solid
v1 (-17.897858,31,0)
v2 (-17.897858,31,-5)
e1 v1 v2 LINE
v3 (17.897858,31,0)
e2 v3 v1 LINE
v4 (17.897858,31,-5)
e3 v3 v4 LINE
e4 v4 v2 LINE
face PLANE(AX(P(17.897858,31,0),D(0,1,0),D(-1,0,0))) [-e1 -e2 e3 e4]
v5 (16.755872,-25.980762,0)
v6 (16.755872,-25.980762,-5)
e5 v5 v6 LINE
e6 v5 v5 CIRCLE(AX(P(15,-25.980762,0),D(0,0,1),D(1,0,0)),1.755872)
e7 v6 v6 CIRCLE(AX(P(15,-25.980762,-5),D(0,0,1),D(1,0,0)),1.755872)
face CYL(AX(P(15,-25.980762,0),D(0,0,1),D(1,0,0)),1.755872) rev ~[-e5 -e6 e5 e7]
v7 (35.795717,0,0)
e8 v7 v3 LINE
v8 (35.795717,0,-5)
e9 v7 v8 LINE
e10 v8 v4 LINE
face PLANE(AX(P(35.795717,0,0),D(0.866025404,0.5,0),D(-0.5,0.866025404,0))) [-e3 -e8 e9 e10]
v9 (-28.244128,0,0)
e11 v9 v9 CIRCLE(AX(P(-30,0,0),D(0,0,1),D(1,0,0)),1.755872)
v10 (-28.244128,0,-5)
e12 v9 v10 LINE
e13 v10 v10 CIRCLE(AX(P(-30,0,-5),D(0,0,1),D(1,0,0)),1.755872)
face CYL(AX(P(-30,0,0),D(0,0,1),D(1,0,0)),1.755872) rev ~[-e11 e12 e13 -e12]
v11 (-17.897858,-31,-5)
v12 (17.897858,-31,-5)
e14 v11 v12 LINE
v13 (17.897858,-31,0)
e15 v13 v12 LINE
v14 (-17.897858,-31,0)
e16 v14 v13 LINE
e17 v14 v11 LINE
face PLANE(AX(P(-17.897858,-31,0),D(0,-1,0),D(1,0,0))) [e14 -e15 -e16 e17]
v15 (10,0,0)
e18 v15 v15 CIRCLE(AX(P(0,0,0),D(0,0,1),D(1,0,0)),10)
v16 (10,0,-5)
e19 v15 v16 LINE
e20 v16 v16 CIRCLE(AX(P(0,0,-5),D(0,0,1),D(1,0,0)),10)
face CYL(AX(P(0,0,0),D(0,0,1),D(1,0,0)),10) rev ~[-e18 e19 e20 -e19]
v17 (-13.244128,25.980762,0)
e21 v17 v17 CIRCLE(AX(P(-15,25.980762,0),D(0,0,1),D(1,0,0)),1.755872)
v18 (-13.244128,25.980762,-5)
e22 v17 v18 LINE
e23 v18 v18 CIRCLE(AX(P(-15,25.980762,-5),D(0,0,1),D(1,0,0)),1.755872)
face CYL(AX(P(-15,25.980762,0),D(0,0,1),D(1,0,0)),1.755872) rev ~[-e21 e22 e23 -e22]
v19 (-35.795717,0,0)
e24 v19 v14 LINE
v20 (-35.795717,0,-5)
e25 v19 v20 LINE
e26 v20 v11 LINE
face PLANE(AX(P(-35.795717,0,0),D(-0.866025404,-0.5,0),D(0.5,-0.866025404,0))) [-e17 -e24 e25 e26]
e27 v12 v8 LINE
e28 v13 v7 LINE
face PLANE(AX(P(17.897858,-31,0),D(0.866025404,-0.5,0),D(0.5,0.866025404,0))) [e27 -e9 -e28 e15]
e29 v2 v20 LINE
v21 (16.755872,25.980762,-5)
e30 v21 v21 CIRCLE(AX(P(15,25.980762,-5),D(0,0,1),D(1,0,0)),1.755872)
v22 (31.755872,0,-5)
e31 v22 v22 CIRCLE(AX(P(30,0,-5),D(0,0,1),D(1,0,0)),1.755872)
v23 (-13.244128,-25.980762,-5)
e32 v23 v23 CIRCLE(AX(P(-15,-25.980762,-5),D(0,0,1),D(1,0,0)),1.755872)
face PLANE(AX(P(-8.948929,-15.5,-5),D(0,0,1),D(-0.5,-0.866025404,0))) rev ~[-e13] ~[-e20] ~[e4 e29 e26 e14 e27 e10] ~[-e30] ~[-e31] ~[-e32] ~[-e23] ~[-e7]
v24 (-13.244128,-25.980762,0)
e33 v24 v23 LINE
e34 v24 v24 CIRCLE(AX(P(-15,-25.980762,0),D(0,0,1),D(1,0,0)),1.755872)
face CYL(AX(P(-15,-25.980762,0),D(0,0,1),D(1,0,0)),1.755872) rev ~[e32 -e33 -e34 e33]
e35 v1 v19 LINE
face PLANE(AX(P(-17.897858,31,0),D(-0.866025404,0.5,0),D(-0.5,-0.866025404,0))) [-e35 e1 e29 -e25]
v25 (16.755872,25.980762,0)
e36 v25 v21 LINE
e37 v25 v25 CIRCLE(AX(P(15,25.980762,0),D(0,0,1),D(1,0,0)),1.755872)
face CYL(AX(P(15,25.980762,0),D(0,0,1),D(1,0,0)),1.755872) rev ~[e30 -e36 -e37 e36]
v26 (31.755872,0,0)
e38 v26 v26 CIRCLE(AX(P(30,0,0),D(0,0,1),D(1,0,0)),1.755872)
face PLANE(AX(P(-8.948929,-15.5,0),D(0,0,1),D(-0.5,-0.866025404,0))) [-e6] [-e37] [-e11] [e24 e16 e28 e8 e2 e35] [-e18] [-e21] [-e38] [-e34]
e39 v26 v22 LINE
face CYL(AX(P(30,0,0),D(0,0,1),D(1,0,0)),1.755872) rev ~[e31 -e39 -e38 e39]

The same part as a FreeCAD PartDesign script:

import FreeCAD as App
import Part
import Sketcher
Q = App.Units.Quantity

doc = App.newDocument("Part")
body = doc.addObject("PartDesign::Body", "Body")

sketch1 = doc.addObject("Sketcher::SketchObject", "Sketch")
body.addObject(sketch1)
sketch1.AttachmentSupport = (doc.XY_Plane, [""])
sketch1.MapMode = "FlatFace"
sketch1.addGeometry([
    Part.LineSegment(App.Vector(36, 0, 0), App.Vector(18, 31, 0)),
    Part.LineSegment(App.Vector(18, 31, 0), App.Vector(0, 0, 0)),
    Part.LineSegment(App.Vector(0, 0, 0), App.Vector(18, -31, 0)),
    Part.LineSegment(App.Vector(18, -31, 0), App.Vector(36, 0, 0)),
], False)
sketch1.addConstraint([
    Sketcher.Constraint("Coincident", 0, 2, 1, 1),
    Sketcher.Constraint("Coincident", 1, 2, 2, 1),
    Sketcher.Constraint("Coincident", 2, 2, 3, 1),
    Sketcher.Constraint("Coincident", 3, 2, 0, 1),
    Sketcher.Constraint("Coincident", 1, 2, -1, 1),
    Sketcher.Constraint("Symmetric", 0, 2, 2, 2, -1),
    Sketcher.Constraint("PointOnObject", 3, 2, -1),
    Sketcher.Constraint("Parallel", 0, 2),
    Sketcher.Constraint("Angle", 0, Q("120 deg")),
    Sketcher.Constraint("DistanceY", -1, 1, 0, 2, Q("31 mm")),
])
pad1 = doc.addObject("PartDesign::Pad", "Pad")
body.addObject(pad1)
pad1.Profile = sketch1
pad1.Length = 5
pad1.Reversed = True
body2 = doc.addObject("PartDesign::Body", "Body001")
doc.recompute()

body2.BaseFeature = body
doc.recompute()

body3 = doc.addObject("PartDesign::Body", "Body002")
body3.BaseFeature = body
body3.Placement = App.Placement(App.Vector(0, 0, 0), App.Rotation(App.Vector(0, 0, 1), 120))
boolean = doc.addObject("PartDesign::Boolean", "Boolean")
body2.addObject(boolean)
boolean.Type = "Fuse"
boolean.addObjects([body3])
doc.recompute()

body.Placement = App.Placement(App.Vector(0, 0, 0), App.Rotation(App.Vector(0, 0, 1), 240))
boolean2 = doc.addObject("PartDesign::Boolean", "Boolean001")
body2.addObject(boolean2)
boolean2.Type = "Fuse"
boolean2.addObjects([body])

sketch2 = doc.addObject("Sketcher::SketchObject", "Sketch001")
body2.addObject(sketch2)
sketch2.AttachmentSupport = (doc.getObject("XY_Plane001"), [""])
sketch2.MapMode = "FlatFace"
sketch2.addGeometry(Part.Circle(App.Vector(0, 0, 0), App.Vector(0, 0, 1), 10), False)
sketch2.addConstraint([
    Sketcher.Constraint("Coincident", 0, 3, -1, 1),
    Sketcher.Constraint("Diameter", 0, Q("20 mm")),
])
pocket1 = doc.addObject("PartDesign::Pocket", "Pocket")
body2.addObject(pocket1)
pocket1.Profile = sketch2
pocket1.Type = "ThroughAll"

sketch3 = doc.addObject("Sketcher::SketchObject", "Sketch002")
body2.addObject(sketch3)
sketch3.AttachmentSupport = (doc.getObject("XY_Plane001"), [""])
sketch3.MapMode = "FlatFace"
sketch3.addGeometry([
    Part.Circle(App.Vector(15, -26, 0), App.Vector(0, 0, 1), 1.8),
    Part.Circle(App.Vector(-15, -26, 0), App.Vector(0, 0, 1), 1.8),
    Part.Circle(App.Vector(30, 0, 0), App.Vector(0, 0, 1), 1.8),
    Part.Circle(App.Vector(15, 26, 0), App.Vector(0, 0, 1), 1.8),
    Part.Circle(App.Vector(-15, 26, 0), App.Vector(0, 0, 1), 1.8),
    Part.Circle(App.Vector(-30, 0, 0), App.Vector(0, 0, 1), 1.8),
], False)
sketch3.addConstraint([
    Sketcher.Constraint("Equal", 0, 1),
    Sketcher.Constraint("Equal", 1, 2),
    Sketcher.Constraint("Equal", 2, 3),
    Sketcher.Constraint("Equal", 3, 4),
    Sketcher.Constraint("Equal", 4, 5),
    Sketcher.Constraint("Symmetric", 1, 3, 3, 3, -1, 1),
    Sketcher.Constraint("Symmetric", 0, 3, 4, 3, -1, 1),
    Sketcher.Constraint("Symmetric", 2, 3, 5, 3, -1, 1),
    Sketcher.Constraint("Symmetric", 0, 3, 1, 3, -2),
    Sketcher.Constraint("PointOnObject", 2, 3, -1),
    Sketcher.Constraint("DistanceX", -1, 1, 0, 3, Q("15 mm")),
    Sketcher.Constraint("DistanceX", -1, 1, 2, 3, Q("30 mm")),
    Sketcher.Constraint("Diameter", 0, Q("3.511745 mm")),
    Sketcher.Constraint("DistanceY", 0, 3, -1, 1, Q("25.980762 mm")),
])
pocket2 = doc.addObject("PartDesign::Pocket", "Pocket001")
body2.addObject(pocket2)
pocket2.Profile = sketch3
pocket2.Type = "ThroughAll"

doc.recompute()
